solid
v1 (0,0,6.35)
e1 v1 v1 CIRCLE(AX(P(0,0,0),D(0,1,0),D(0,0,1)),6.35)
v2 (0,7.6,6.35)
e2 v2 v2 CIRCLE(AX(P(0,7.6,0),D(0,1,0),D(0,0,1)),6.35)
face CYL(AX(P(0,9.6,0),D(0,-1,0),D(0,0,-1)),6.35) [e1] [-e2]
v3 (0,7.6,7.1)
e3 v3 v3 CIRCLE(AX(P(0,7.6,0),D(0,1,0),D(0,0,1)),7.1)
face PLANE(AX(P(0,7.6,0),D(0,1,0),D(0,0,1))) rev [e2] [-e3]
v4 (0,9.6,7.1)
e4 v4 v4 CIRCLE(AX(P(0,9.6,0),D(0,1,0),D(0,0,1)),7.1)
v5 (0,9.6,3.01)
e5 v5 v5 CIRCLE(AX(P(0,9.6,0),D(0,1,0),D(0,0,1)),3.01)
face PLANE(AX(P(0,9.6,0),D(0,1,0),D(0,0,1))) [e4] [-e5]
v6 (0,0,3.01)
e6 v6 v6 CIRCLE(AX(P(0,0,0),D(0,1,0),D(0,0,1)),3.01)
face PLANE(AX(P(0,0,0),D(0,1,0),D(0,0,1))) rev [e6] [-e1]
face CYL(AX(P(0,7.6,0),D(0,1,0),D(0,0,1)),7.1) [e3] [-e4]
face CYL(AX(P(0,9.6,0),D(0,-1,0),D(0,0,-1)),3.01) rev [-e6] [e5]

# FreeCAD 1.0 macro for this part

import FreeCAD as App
import Part
import Sketcher

V = App.Vector
Q = App.Units.Quantity

doc = App.newDocument("Part")
body = doc.addObject("PartDesign::Body", "Body")

sketch1 = doc.addObject("Sketcher::SketchObject", "Sketch")
body.addObject(sketch1)
sketch1.AttachmentSupport = (doc.XZ_Plane, [""])
sketch1.MapMode = "FlatFace"
sketch1.addGeometry([
    Part.Circle(V(0, 0, 0), V(0, 0, 1), 6.3),
    Part.Circle(V(0, 0, 0), V(0, 0, 1), 3),
], False)
sketch1.addConstraint([
    Sketcher.Constraint("Coincident", 0, 3, -1, 1),
    Sketcher.Constraint("Coincident", 1, 3, -1, 1),
    Sketcher.Constraint("Diameter", 0, Q("12.7 mm")),
    Sketcher.Constraint("Diameter", 1, Q("6.02 mm")),
])
pad1 = doc.addObject("PartDesign::Pad", "Pad")
body.addObject(pad1)
pad1.Profile = sketch1
pad1.Length = 9.6
pad1.Reversed = True

sketch2 = doc.addObject("Sketcher::SketchObject", "Sketch001")
body.addObject(sketch2)
sketch2.AttachmentSupport = (doc.XZ_Plane, [""])
sketch2.MapMode = "FlatFace"
sketch2.AttachmentOffset = App.Placement(V(0, 0, -9.6), App.Rotation())
sketch2.addGeometry([
    Part.Circle(V(0, 0, 0), V(0, 0, 1), 7),
    Part.Circle(V(0, 0, 0), V(0, 0, 1), 5),
], False)
sketch2.addConstraint([
    Sketcher.Constraint("Coincident", 0, 3, -1, 1),
    Sketcher.Constraint("Coincident", 1, 3, -1, 1),
    Sketcher.Constraint("Diameter", 1, Q("10 mm")),
    Sketcher.Constraint("Diameter", 0, Q("14.2 mm")),
])
pad2 = doc.addObject("PartDesign::Pad", "Pad001")
body.addObject(pad2)
pad2.Profile = sketch2
pad2.Length = 2

doc.recompute()
